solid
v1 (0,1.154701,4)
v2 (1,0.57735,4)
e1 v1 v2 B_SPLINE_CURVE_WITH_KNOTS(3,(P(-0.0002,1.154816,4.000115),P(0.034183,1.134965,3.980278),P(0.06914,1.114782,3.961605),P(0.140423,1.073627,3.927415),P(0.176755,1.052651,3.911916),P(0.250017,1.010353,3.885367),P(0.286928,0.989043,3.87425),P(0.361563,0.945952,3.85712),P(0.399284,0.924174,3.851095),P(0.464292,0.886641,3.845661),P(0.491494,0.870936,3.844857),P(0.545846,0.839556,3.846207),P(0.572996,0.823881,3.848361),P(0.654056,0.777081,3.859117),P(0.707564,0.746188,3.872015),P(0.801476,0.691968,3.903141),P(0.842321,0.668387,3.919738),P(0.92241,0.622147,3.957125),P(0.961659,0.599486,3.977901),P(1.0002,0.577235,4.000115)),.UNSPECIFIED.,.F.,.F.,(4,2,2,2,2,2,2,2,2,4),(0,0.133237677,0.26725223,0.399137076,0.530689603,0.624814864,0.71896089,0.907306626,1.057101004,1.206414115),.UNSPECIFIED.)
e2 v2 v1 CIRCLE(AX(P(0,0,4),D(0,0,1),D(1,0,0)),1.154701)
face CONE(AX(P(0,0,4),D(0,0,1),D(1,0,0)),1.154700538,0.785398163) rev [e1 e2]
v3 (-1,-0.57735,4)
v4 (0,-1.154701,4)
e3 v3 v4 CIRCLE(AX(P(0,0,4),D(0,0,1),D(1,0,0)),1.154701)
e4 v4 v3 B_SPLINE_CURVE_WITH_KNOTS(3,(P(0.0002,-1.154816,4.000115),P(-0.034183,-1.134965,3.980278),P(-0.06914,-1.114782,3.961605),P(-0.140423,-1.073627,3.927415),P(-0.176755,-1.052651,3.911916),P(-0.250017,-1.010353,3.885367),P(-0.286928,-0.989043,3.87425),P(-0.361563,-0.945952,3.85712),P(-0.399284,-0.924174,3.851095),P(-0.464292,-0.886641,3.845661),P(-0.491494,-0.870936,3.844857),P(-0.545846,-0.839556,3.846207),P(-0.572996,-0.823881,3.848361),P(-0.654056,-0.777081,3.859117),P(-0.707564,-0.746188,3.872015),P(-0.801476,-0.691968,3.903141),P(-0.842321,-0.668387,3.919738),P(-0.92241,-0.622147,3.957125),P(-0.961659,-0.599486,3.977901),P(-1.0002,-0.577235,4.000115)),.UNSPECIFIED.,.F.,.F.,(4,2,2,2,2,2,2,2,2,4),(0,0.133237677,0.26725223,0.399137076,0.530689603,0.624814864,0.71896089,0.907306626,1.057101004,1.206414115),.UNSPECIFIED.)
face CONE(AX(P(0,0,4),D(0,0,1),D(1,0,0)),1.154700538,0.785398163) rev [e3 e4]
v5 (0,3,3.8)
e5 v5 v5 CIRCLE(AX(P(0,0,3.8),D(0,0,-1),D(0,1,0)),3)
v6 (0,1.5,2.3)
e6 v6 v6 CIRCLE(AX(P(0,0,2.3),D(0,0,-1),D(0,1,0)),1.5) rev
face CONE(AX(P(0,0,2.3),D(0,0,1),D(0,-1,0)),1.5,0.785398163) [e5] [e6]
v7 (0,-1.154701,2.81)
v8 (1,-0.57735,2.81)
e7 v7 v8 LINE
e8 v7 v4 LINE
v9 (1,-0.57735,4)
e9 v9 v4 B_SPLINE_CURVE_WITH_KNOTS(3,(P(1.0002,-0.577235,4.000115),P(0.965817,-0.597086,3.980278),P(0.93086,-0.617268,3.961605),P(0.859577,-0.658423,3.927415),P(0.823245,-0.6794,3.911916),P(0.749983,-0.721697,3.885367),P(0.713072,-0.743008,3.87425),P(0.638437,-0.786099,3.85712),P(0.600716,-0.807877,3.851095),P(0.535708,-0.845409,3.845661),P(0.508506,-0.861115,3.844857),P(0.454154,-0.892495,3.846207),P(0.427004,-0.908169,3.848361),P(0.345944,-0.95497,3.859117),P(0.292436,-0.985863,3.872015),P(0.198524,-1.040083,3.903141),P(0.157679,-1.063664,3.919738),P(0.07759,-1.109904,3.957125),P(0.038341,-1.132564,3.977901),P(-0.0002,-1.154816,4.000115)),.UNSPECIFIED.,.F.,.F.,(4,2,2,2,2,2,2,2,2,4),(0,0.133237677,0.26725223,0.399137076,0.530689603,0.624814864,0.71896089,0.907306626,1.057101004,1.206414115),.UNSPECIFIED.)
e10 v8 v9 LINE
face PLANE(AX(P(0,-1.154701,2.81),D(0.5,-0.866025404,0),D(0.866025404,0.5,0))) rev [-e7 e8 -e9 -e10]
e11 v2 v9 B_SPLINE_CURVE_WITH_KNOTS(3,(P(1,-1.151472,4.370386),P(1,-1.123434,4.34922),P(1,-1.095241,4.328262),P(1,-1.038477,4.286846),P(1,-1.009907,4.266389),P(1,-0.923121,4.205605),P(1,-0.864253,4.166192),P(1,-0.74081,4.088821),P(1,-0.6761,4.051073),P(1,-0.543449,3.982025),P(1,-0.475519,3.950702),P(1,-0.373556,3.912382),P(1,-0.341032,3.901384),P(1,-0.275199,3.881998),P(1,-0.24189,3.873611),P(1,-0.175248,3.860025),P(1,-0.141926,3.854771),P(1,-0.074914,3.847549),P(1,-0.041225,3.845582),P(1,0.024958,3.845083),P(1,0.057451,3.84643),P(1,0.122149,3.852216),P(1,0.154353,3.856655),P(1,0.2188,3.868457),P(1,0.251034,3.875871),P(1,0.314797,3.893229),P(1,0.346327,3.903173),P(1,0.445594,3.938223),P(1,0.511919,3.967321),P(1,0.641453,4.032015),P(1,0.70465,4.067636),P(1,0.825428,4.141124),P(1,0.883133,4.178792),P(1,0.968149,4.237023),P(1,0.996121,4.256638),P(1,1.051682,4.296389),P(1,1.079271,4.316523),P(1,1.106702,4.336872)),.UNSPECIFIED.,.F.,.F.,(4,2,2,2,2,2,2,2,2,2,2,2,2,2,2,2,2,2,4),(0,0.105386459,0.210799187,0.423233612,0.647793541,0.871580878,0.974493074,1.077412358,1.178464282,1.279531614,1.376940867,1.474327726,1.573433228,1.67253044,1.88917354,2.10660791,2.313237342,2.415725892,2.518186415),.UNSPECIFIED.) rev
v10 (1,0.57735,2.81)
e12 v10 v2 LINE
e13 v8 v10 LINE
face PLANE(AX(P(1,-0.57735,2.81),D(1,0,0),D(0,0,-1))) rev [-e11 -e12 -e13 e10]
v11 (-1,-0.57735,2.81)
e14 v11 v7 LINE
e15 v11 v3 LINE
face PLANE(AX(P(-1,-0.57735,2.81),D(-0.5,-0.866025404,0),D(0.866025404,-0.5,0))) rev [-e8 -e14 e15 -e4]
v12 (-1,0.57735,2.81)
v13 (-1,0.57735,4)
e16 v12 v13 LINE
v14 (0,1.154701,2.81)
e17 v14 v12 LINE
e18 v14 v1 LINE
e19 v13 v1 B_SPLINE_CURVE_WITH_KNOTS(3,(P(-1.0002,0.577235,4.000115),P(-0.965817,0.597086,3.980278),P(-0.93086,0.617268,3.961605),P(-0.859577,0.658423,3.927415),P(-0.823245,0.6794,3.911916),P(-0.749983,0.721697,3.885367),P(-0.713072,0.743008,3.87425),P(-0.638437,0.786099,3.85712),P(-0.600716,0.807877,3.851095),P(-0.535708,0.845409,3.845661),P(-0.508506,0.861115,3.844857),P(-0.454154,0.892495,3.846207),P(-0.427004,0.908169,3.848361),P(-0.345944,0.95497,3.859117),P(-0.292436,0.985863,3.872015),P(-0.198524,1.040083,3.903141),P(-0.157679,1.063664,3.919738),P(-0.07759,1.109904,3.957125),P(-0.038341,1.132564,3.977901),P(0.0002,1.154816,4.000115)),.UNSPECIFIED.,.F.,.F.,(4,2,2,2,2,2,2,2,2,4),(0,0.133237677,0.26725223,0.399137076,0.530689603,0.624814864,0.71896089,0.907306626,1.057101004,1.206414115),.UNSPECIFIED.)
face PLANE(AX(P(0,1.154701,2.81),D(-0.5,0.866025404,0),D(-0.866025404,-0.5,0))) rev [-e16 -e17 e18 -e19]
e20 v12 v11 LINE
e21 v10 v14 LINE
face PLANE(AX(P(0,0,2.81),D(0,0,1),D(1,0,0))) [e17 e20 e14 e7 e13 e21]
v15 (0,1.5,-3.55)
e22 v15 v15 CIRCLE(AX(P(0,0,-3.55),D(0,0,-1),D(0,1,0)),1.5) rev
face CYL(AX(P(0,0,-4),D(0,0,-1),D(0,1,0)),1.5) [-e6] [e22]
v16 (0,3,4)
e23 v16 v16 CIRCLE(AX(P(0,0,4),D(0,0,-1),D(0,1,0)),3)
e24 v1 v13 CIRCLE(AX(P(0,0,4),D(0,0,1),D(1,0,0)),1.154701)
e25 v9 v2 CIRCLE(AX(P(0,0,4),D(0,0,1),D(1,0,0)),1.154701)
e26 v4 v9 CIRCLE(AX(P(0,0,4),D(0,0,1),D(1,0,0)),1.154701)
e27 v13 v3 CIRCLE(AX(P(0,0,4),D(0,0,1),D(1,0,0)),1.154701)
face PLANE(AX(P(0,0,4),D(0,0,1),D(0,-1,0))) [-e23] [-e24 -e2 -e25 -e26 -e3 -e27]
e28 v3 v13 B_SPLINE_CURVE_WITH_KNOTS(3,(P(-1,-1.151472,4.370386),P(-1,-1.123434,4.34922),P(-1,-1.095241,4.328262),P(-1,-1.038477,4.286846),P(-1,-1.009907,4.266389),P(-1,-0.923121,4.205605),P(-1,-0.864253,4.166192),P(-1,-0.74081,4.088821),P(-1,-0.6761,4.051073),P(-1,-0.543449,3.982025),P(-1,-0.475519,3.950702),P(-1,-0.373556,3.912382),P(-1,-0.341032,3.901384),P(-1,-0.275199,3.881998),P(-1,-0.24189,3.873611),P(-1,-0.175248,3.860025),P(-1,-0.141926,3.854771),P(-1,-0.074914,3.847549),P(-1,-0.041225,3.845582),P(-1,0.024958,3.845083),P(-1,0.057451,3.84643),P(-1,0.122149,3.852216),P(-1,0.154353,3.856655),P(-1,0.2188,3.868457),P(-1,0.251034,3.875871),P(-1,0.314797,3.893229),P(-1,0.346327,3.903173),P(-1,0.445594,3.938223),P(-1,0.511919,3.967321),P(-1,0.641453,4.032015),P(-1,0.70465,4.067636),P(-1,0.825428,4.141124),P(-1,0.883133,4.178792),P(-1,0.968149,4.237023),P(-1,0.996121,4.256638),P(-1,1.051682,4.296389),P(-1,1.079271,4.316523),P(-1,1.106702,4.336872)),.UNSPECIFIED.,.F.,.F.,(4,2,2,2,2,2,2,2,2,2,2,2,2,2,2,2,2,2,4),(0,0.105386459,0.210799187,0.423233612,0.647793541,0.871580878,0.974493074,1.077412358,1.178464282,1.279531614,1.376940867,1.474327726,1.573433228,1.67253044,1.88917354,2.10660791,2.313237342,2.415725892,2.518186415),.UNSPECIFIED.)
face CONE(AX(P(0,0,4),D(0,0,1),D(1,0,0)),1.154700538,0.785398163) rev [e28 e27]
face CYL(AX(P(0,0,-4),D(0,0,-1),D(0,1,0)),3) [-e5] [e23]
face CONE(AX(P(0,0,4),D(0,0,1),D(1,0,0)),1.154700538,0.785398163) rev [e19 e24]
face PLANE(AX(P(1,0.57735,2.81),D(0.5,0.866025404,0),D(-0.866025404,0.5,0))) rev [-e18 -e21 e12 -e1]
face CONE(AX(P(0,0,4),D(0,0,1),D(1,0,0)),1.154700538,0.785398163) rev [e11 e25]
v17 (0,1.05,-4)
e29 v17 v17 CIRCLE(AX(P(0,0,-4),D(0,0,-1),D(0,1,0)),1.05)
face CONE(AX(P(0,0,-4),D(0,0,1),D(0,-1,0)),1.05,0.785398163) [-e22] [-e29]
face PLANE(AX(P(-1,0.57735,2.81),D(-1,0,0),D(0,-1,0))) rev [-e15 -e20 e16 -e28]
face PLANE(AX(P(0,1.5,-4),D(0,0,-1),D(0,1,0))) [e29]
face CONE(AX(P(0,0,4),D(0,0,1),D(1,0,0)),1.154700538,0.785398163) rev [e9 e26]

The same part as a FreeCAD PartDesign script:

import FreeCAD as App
import Part
import Sketcher
from FreeCAD import Vector
Q = App.Units.Quantity


def edges_at(feature, points):
    """Names of the edges that pass closest to the given points."""
    edges = feature.Shape.Edges
    near = lambda p: min(range(len(edges)), key=lambda i: edges[i].distToShape(Part.Vertex(*p))[0])
    return sorted({f"Edge{near(p) + 1}" for p in points})

doc = App.newDocument("Part")
body = doc.addObject("PartDesign::Body", "Body")

sketch1 = doc.addObject("Sketcher::SketchObject", "Sketch")
body.addObject(sketch1)
sketch1.AttachmentSupport = (doc.YZ_Plane, [""])
sketch1.MapMode = "FlatFace"
sketch1.addGeometry([
    Part.LineSegment(Vector(1.5, 4, 0), Vector(0, 4, 0)),
    Part.LineSegment(Vector(0, 4, 0), Vector(0, -4, 0)),
    Part.LineSegment(Vector(0, -4, 0), Vector(1.5, -4, 0)),
    Part.LineSegment(Vector(1.5, -4, 0), Vector(1.5, 4, 0)),
], False)
sketch1.addConstraint([
    Sketcher.Constraint("Coincident", 0, 2, 1, 1),
    Sketcher.Constraint("Coincident", 1, 2, 2, 1),
    Sketcher.Constraint("Coincident", 2, 2, 3, 1),
    Sketcher.Constraint("Coincident", 3, 2, 0, 1),
    Sketcher.Constraint("Horizontal", 0),
    Sketcher.Constraint("Vertical", 1),
    Sketcher.Constraint("Horizontal", 2),
    Sketcher.Constraint("Vertical", 3),
    Sketcher.Constraint("Symmetric", 0, 2, 1, 2, -1, 1),
    Sketcher.Constraint("DistanceY", 1, 2, 1, 1, 8.0),
    Sketcher.Constraint("DistanceX", 0, 2, 0, 1, 1.5),
])
revolution = doc.addObject("PartDesign::Revolution", "Revolution")
body.addObject(revolution)
revolution.Profile = sketch1
revolution.ReferenceAxis = (sketch1, ["V_Axis"])
revolution.Angle = 360
doc.recompute()

chamfer = doc.addObject("PartDesign::Chamfer", "Chamfer")
body.addObject(chamfer)
chamfer.Base = (revolution, edges_at(revolution, [(0, -1.5, -4)]))
chamfer.Size = 0.45

sketch2 = doc.addObject("Sketcher::SketchObject", "Sketch001")
body.addObject(sketch2)
sketch2.AttachmentSupport = (doc.YZ_Plane, [""])
sketch2.MapMode = "FlatFace"
sketch2.addGeometry([
    Part.LineSegment(Vector(3, 3.8, 0), Vector(3, 4, 0)),
    Part.LineSegment(Vector(3, 4, 0), Vector(0, 4, 0)),
    Part.LineSegment(Vector(0, 4, 0), Vector(0, 2.3, 0)),
    Part.LineSegment(Vector(0, 2.3, 0), Vector(1.5, 2.3, 0)),
    Part.LineSegment(Vector(1.5, 2.3, 0), Vector(3, 3.8, 0)),
], False)
sketch2.addConstraint([
    Sketcher.Constraint("Coincident", 0, 2, 1, 1),
    Sketcher.Constraint("Coincident", 1, 2, 2, 1),
    Sketcher.Constraint("Coincident", 2, 2, 3, 1),
    Sketcher.Constraint("Coincident", 3, 2, 4, 1),
    Sketcher.Constraint("Coincident", 4, 2, 0, 1),
    Sketcher.Constraint("Vertical", 0),
    Sketcher.Constraint("Horizontal", 1),
    Sketcher.Constraint("Vertical", 2),
    Sketcher.Constraint("Horizontal", 3),
    Sketcher.Constraint("PointOnObject", 1, 2, -2),
    Sketcher.Constraint("DistanceX", 1, 2, 1, 1, 3.0),
    Sketcher.Constraint("Angle", 4, Q("45 deg")),
    Sketcher.Constraint("DistanceX", 3, 1, 3, 2, 1.5),
    Sketcher.Constraint("DistanceY", 0, 1, 0, 2, 0.2),
    Sketcher.Constraint("DistanceY", -1, 1, 0, 2, 4.0),
])
revolution2 = doc.addObject("PartDesign::Revolution", "Revolution001")
body.addObject(revolution2)
revolution2.Profile = sketch2
revolution2.ReferenceAxis = (sketch2, ["V_Axis"])
revolution2.Angle = 360

sketch3 = doc.addObject("Sketcher::SketchObject", "Sketch002")
body.addObject(sketch3)
sketch3.AttachmentSupport = (doc.XY_Plane, [""])
sketch3.MapMode = "FlatFace"
sketch3.AttachmentOffset = App.Placement(Vector(0, 0, 4), App.Rotation())
sketch3.addGeometry([
    Part.LineSegment(Vector(0, 1.154701, 0), Vector(-1, 0.57735, 0)),
    Part.LineSegment(Vector(-1, 0.57735, 0), Vector(-1, -0.57735, 0)),
    Part.LineSegment(Vector(-1, -0.57735, 0), Vector(0, -1.154701, 0)),
    Part.LineSegment(Vector(0, -1.154701, 0), Vector(1, -0.57735, 0)),
    Part.LineSegment(Vector(1, -0.57735, 0), Vector(1, 0.57735, 0)),
    Part.LineSegment(Vector(1, 0.57735, 0), Vector(0, 1.154701, 0)),
], False)
sketch3.addConstraint([
    Sketcher.Constraint("Coincident", 0, 2, 1, 1),
    Sketcher.Constraint("Coincident", 1, 2, 2, 1),
    Sketcher.Constraint("Coincident", 2, 2, 3, 1),
    Sketcher.Constraint("Coincident", 3, 2, 4, 1),
    Sketcher.Constraint("Coincident", 4, 2, 5, 1),
    Sketcher.Constraint("Coincident", 5, 2, 0, 1),
    Sketcher.Constraint("Vertical", 1),
    Sketcher.Constraint("Vertical", 4),
    Sketcher.Constraint("Symmetric", 0, 2, 3, 2, -1, 1),
    Sketcher.Constraint("Symmetric", 2, 2, 5, 2, -1, 1),
    Sketcher.Constraint("PointOnObject", 2, 2, -2),
    Sketcher.Constraint("Parallel", 2, 5),
    Sketcher.Constraint("Horizontal", 1, 2, 3, 2),
    Sketcher.Constraint("Angle", 0, Q("-150 deg")),
    Sketcher.Constraint("DistanceX", 0, 2, -1, 1, 1.0),
    Sketcher.Constraint("DistanceY", 1, 2, 1, 1, 1.154701),
])
pocket1 = doc.addObject("PartDesign::Pocket", "Pocket")
body.addObject(pocket1)
pocket1.Profile = sketch3
pocket1.Length = 1.19

sketch4 = doc.addObject("Sketcher::SketchObject", "Sketch003")
body.addObject(sketch4)
sketch4.AttachmentSupport = (doc.YZ_Plane, [""])
sketch4.MapMode = "FlatFace"
sketch4.addGeometry([
    Part.LineSegment(Vector(0, 4, 0), Vector(-1.154701, 4, 0)),
    Part.LineSegment(Vector(-1.154701, 4, 0), Vector(0, 2.845299, 0)),
    Part.LineSegment(Vector(0, 2.845299, 0), Vector(0, 4, 0)),
], False)
sketch4.addConstraint([
    Sketcher.Constraint("Coincident", 0, 2, 1, 1),
    Sketcher.Constraint("Coincident", 1, 2, 2, 1),
    Sketcher.Constraint("Coincident", 2, 2, 0, 1),
    Sketcher.Constraint("Horizontal", 0),
    Sketcher.Constraint("Vertical", 2),
    Sketcher.Constraint("PointOnObject", 1, 2, -2),
    Sketcher.Constraint("Equal", 0, 2),
    Sketcher.Constraint("DistanceY", -1, 1, 0, 2, 4.0),
    Sketcher.Constraint("DistanceX", 0, 2, 0, 1, 1.154701),
])
groove = doc.addObject("PartDesign::Groove", "Groove")
body.addObject(groove)
groove.Profile = sketch4
groove.ReferenceAxis = (sketch4, ["V_Axis"])
groove.Angle = 360

doc.recompute()
